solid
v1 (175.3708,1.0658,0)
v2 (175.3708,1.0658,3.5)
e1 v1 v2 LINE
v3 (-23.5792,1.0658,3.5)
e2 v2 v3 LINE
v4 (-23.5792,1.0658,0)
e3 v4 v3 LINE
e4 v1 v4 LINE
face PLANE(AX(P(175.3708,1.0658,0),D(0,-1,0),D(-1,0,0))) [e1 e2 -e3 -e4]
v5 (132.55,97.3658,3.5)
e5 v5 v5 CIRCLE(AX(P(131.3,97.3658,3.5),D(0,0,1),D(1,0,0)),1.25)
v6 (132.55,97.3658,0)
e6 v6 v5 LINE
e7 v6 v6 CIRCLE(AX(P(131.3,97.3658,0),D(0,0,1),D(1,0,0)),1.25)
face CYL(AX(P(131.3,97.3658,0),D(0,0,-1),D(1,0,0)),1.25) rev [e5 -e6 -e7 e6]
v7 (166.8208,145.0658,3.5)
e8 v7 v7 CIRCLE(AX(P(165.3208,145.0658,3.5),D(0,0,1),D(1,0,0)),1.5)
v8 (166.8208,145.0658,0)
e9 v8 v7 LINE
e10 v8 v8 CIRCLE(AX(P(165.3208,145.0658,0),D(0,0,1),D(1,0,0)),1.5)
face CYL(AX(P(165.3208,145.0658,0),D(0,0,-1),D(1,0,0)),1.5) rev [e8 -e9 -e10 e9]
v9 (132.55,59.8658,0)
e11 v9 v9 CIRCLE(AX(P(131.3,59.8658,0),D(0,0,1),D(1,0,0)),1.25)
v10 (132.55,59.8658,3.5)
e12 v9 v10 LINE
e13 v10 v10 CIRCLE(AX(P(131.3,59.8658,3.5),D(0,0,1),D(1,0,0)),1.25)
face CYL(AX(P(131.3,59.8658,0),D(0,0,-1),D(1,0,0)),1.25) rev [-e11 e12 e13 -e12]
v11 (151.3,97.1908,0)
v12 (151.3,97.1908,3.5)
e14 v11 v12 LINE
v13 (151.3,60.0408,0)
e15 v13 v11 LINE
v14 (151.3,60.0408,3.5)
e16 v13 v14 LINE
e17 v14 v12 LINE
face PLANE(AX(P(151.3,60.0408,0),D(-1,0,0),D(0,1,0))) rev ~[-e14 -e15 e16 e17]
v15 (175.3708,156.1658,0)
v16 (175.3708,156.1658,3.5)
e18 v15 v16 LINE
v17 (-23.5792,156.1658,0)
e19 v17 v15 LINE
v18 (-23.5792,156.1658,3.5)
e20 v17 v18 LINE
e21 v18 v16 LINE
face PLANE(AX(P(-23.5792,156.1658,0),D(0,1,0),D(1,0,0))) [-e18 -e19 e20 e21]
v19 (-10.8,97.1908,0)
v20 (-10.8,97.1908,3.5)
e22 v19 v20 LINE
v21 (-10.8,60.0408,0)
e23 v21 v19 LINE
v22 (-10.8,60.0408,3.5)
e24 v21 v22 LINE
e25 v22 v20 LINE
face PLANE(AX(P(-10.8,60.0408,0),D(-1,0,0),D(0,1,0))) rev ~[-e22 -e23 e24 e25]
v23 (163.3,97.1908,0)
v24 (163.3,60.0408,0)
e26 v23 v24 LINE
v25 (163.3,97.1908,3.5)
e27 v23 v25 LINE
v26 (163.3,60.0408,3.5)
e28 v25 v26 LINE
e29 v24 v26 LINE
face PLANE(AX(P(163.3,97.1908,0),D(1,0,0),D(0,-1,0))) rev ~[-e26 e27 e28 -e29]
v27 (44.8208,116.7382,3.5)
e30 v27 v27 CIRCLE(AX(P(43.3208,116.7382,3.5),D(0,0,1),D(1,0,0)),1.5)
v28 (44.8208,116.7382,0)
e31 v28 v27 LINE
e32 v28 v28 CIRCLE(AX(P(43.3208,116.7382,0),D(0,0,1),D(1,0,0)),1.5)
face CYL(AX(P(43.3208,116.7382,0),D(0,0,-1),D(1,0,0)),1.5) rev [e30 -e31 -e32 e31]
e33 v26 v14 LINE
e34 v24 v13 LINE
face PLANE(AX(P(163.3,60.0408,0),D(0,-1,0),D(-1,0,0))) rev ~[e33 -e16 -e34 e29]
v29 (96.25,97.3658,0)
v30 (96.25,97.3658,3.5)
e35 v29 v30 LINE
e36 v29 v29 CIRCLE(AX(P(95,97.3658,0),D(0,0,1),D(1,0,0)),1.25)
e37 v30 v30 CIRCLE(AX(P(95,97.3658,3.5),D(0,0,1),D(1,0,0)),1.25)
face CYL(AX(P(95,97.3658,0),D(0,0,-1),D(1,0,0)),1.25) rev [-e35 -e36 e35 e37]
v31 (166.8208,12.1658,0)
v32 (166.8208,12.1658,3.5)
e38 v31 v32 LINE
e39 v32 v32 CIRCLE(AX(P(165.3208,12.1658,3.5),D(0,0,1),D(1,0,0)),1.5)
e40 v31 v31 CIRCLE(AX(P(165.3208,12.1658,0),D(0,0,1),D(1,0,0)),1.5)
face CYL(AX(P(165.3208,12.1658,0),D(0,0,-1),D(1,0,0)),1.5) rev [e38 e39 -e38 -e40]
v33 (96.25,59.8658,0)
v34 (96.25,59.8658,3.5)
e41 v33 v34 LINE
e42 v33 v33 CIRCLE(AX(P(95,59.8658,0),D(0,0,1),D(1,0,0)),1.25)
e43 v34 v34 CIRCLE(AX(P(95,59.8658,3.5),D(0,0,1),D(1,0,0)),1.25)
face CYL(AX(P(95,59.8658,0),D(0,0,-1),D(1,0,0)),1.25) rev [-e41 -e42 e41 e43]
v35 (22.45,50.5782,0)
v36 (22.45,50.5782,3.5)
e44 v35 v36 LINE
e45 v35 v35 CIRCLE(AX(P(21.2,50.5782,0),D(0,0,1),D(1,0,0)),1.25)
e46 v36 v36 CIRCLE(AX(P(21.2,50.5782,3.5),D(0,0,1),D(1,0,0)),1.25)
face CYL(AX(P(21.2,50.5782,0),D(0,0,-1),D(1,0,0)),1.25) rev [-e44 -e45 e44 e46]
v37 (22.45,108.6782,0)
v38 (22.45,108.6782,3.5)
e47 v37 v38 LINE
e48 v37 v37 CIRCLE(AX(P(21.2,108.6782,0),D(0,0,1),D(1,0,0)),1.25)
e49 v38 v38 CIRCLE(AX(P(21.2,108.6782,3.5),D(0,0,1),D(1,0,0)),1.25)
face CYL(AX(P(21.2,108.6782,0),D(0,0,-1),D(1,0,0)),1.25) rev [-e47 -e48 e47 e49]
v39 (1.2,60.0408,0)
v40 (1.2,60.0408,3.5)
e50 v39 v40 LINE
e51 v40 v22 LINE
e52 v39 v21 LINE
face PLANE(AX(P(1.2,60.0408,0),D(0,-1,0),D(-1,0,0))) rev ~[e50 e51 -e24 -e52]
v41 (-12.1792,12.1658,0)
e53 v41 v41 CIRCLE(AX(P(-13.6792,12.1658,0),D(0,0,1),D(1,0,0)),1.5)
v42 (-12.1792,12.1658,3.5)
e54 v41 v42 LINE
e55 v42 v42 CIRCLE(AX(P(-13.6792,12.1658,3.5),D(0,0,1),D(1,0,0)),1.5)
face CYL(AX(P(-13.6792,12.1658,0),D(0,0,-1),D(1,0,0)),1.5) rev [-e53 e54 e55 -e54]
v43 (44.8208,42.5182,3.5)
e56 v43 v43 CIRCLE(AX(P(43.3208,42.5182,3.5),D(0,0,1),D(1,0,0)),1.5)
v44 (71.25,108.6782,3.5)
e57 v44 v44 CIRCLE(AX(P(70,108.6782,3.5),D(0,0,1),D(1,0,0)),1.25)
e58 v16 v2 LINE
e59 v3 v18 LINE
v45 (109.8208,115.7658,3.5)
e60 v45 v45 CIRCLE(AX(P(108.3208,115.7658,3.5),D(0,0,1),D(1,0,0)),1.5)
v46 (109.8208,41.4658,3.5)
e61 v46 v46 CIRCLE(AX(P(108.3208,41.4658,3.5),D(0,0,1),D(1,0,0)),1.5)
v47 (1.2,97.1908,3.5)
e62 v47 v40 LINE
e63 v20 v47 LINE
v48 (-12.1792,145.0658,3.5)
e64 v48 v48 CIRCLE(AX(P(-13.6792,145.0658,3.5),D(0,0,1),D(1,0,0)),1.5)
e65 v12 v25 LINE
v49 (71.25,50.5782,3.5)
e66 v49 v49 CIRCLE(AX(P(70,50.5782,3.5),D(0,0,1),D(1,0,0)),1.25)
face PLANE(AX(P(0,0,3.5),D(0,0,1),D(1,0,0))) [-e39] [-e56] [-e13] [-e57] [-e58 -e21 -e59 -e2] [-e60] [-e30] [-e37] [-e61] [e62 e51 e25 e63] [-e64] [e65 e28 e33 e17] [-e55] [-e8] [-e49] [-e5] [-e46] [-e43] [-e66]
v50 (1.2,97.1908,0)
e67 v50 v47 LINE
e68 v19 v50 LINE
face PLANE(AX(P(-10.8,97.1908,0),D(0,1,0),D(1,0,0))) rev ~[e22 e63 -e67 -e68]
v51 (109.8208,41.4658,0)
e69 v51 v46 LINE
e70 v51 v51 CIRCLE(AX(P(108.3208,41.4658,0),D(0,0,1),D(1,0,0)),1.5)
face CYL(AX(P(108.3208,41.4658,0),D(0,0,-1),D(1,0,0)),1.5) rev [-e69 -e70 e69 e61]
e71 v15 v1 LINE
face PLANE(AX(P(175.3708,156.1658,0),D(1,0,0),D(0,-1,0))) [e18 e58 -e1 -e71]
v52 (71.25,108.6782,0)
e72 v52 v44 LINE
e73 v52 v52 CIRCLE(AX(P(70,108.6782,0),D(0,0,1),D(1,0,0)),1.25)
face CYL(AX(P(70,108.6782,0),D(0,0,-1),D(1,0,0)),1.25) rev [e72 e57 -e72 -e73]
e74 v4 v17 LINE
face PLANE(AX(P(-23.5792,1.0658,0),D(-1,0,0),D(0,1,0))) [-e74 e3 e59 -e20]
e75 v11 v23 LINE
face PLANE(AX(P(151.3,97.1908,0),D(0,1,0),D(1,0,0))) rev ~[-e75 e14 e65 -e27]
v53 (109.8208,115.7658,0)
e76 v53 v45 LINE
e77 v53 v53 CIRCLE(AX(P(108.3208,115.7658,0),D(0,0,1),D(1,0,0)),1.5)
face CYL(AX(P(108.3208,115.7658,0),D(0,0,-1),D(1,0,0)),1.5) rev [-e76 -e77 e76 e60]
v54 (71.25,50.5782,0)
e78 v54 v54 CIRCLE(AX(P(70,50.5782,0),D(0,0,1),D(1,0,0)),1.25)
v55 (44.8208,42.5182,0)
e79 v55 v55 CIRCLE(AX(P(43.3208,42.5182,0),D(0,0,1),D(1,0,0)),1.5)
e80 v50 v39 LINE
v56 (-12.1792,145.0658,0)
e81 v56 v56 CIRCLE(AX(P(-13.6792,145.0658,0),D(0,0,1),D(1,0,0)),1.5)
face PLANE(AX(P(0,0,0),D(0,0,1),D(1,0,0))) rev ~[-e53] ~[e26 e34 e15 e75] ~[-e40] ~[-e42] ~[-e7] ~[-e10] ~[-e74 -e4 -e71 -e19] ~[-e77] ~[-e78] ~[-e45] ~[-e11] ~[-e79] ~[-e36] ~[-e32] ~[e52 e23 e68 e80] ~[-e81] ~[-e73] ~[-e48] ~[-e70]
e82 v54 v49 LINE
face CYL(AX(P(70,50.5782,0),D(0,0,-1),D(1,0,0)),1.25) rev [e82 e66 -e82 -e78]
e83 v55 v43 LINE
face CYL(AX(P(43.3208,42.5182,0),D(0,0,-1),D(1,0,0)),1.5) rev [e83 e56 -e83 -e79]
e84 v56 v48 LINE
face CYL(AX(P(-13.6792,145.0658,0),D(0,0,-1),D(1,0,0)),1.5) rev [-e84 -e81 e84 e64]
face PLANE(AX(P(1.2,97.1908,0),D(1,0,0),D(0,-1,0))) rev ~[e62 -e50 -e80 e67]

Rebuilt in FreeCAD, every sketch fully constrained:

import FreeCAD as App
import Part
import Sketcher

V = App.Vector
Q = App.Units.Quantity


def add_polygon(sketch, points):
    """Adds a closed chain of lines whose ends are joined by coincident constraints."""
    first, n = sketch.GeometryCount, len(points)
    for a, b in zip(points, points[1:] + points[:1]):
        sketch.addGeometry(Part.LineSegment(App.Vector(*a, 0), App.Vector(*b, 0)), False)
    for i in range(n):
        sketch.addConstraint(Sketcher.Constraint("Coincident", first + i, 2, first + (i + 1) % n, 1))

doc = App.newDocument("Part")
body = doc.addObject("PartDesign::Body", "Body")

# Sketch on XY plane
sketch1 = body.newObject("Sketcher::SketchObject", "Sketch")
sketch1.AttachmentSupport = (doc.getObject("XY_Plane"), [""])
sketch1.MapMode = "FlatFace"
add_polygon(sketch1, [(175.4, 156.2), (-23.6, 156.2), (-23.6, 1.1), (175.4, 1.1)])  # lines 0-3
sketch1.addGeometry(Part.Circle(V(-13.7, 12.2, 0), V(0, 0, 1), 1.5), False)  # 4
sketch1.addGeometry(Part.Circle(V(21.2, 50.6, 0), V(0, 0, 1), 1.2), False)  # 5
sketch1.addGeometry(Part.Circle(V(43.3, 42.5, 0), V(0, 0, 1), 1.5), False)  # 6
sketch1.addGeometry(Part.Circle(V(70, 50.6, 0), V(0, 0, 1), 1.2), False)  # 7
sketch1.addGeometry(Part.Circle(V(165.3, 12.2, 0), V(0, 0, 1), 1.5), False)  # 8
sketch1.addGeometry(Part.Circle(V(108.3, 41.5, 0), V(0, 0, 1), 1.5), False)  # 9
sketch1.addGeometry(Part.Circle(V(95, 59.9, 0), V(0, 0, 1), 1.2), False)  # 10
sketch1.addGeometry(Part.Circle(V(131.3, 59.9, 0), V(0, 0, 1), 1.2), False)  # 11
add_polygon(sketch1, [(-10.8, 60), (-10.8, 97.2), (1.2, 97.2), (1.2, 60)])  # lines 12-15
sketch1.addGeometry(Part.Circle(V(21.2, 108.7, 0), V(0, 0, 1), 1.2), False)  # 16
sketch1.addGeometry(Part.Circle(V(43.3, 116.7, 0), V(0, 0, 1), 1.5), False)  # 17
sketch1.addGeometry(Part.Circle(V(70, 108.7, 0), V(0, 0, 1), 1.2), False)  # 18
sketch1.addGeometry(Part.Circle(V(-13.7, 145.1, 0), V(0, 0, 1), 1.5), False)  # 19
sketch1.addGeometry(Part.Circle(V(95, 97.4, 0), V(0, 0, 1), 1.2), False)  # 20
sketch1.addGeometry(Part.Circle(V(108.3, 115.8, 0), V(0, 0, 1), 1.5), False)  # 21
sketch1.addGeometry(Part.Circle(V(131.3, 97.4, 0), V(0, 0, 1), 1.2), False)  # 22
add_polygon(sketch1, [(151.3, 60), (151.3, 97.2), (163.3, 97.2), (163.3, 60)])  # lines 23-26
sketch1.addGeometry(Part.Circle(V(165.3, 145.1, 0), V(0, 0, 1), 1.5), False)  # 27
sketch1.addConstraint([
    Sketcher.Constraint("Horizontal", 0),
    Sketcher.Constraint("Vertical", 1),
    Sketcher.Constraint("Horizontal", 2),
    Sketcher.Constraint("Vertical", 3),
    Sketcher.Constraint("Vertical", 12),
    Sketcher.Constraint("Horizontal", 13),
    Sketcher.Constraint("Vertical", 14),
    Sketcher.Constraint("Horizontal", 15),
    Sketcher.Constraint("Vertical", 23),
    Sketcher.Constraint("Horizontal", 24),
    Sketcher.Constraint("Vertical", 25),
    Sketcher.Constraint("Horizontal", 26),
    Sketcher.Constraint("Equal", 4, 6),
    Sketcher.Constraint("Equal", 5, 7),
    Sketcher.Constraint("Equal", 6, 8),
    Sketcher.Constraint("Equal", 8, 9),
    Sketcher.Constraint("Equal", 7, 10),
    Sketcher.Constraint("Equal", 10, 11),
    Sketcher.Constraint("Equal", 11, 16),
    Sketcher.Constraint("Equal", 9, 17),
    Sketcher.Constraint("Equal", 16, 18),
    Sketcher.Constraint("Equal", 17, 19),
    Sketcher.Constraint("Equal", 18, 20),
    Sketcher.Constraint("Equal", 19, 21),
    Sketcher.Constraint("Equal", 20, 22),
    Sketcher.Constraint("Equal", 21, 27),
    Sketcher.Constraint("Horizontal", 5, 3, 7, 3),
    Sketcher.Constraint("Horizontal", 4, 3, 8, 3),
    Sketcher.Constraint("Horizontal", 10, 3, 11, 3),
    Sketcher.Constraint("Horizontal", 16, 3, 18, 3),
    Sketcher.Constraint("Horizontal", 20, 3, 22, 3),
    Sketcher.Constraint("Horizontal", 19, 3, 27, 3),
    Sketcher.Constraint("Horizontal", 13, 2, 23, 2),
    Sketcher.Constraint("Horizontal", 15, 2, 25, 2),
    Sketcher.Constraint("Vertical", 5, 3, 16, 3),
    Sketcher.Constraint("Vertical", 6, 3, 17, 3),
    Sketcher.Constraint("Vertical", 7, 3, 18, 3),
    Sketcher.Constraint("Vertical", 4, 3, 19, 3),
    Sketcher.Constraint("Vertical", 10, 3, 20, 3),
    Sketcher.Constraint("Vertical", 9, 3, 21, 3),
    Sketcher.Constraint("Vertical", 11, 3, 22, 3),
    Sketcher.Constraint("Vertical", 8, 3, 27, 3),
    Sketcher.Constraint("Equal", 15, 24),
    Sketcher.Constraint("Diameter", 4, Q("3 mm")),
    Sketcher.Constraint("Diameter", 5, Q("2.5 mm")),
    Sketcher.Constraint("DistanceX", 13, 1, 13, 2, Q("12 mm")),
    Sketcher.Constraint("DistanceX", 6, 3, 9, 3, Q("65 mm")),
    Sketcher.Constraint("DistanceX", 7, 3, 10, 3, Q("25 mm")),
    Sketcher.Constraint("DistanceX", 13, 2, 16, 3, Q("20 mm")),
    Sketcher.Constraint("DistanceX", 22, 3, 23, 2, Q("20 mm")),
    Sketcher.Constraint("DistanceY", 12, 1, 12, 2, Q("37.15 mm")),
    Sketcher.Constraint("DistanceX", 5, 3, 7, 3, Q("48.8 mm")),
    Sketcher.Constraint("DistanceY", 9, 3, 10, 3, Q("18.4 mm")),
    Sketcher.Constraint("DistanceX", 10, 3, 11, 3, Q("36.3 mm")),
    Sketcher.Constraint("DistanceY", 5, 3, 16, 3, Q("58.1 mm")),
    Sketcher.Constraint("DistanceY", 10, 3, 20, 3, Q("37.5 mm")),
    Sketcher.Constraint("DistanceY", 20, 3, 21, 3, Q("18.4 mm")),
    Sketcher.Constraint("DistanceX", 0, 2, 19, 3, Q("9.9 mm")),
    Sketcher.Constraint("DistanceY", 19, 3, 0, 2, Q("11.1 mm")),
    Sketcher.Constraint("DistanceX", 0, 2, 17, 3, Q("66.9 mm")),
    Sketcher.Constraint("DistanceY", 1, 2, 4, 3, Q("11.1 mm")),
    Sketcher.Constraint("DistanceY", 2, 2, 9, 3, Q("40.4 mm")),
    Sketcher.Constraint("DistanceY", 21, 3, 3, 2, Q("40.4 mm")),
    Sketcher.Constraint("DistanceY", 6, 3, 5, 3, Q("8.06 mm")),
    Sketcher.Constraint("DistanceY", 16, 3, 17, 3, Q("8.06 mm")),
    Sketcher.Constraint("DistanceX", 8, 3, 2, 2, Q("10.05 mm")),
    Sketcher.Constraint("DistanceX", 9, 3, 2, 2, Q("67.05 mm")),
    Sketcher.Constraint("DistanceX", -1, 1, 7, 3, Q("70 mm")),
    Sketcher.Constraint("DistanceY", 12, 2, 19, 3, Q("47.875 mm")),
    Sketcher.Constraint("DistanceX", 4, 3, -1, 1, Q("13.6792 mm")),
    Sketcher.Constraint("DistanceY", -1, 1, 4, 3, Q("12.1658 mm")),
    Sketcher.Constraint("DistanceY", -1, 1, 5, 3, Q("50.5782 mm")),
])
pad1 = body.newObject("PartDesign::Pad", "Pad")
pad1.Profile = sketch1
pad1.Length = 3.5

doc.recompute()
